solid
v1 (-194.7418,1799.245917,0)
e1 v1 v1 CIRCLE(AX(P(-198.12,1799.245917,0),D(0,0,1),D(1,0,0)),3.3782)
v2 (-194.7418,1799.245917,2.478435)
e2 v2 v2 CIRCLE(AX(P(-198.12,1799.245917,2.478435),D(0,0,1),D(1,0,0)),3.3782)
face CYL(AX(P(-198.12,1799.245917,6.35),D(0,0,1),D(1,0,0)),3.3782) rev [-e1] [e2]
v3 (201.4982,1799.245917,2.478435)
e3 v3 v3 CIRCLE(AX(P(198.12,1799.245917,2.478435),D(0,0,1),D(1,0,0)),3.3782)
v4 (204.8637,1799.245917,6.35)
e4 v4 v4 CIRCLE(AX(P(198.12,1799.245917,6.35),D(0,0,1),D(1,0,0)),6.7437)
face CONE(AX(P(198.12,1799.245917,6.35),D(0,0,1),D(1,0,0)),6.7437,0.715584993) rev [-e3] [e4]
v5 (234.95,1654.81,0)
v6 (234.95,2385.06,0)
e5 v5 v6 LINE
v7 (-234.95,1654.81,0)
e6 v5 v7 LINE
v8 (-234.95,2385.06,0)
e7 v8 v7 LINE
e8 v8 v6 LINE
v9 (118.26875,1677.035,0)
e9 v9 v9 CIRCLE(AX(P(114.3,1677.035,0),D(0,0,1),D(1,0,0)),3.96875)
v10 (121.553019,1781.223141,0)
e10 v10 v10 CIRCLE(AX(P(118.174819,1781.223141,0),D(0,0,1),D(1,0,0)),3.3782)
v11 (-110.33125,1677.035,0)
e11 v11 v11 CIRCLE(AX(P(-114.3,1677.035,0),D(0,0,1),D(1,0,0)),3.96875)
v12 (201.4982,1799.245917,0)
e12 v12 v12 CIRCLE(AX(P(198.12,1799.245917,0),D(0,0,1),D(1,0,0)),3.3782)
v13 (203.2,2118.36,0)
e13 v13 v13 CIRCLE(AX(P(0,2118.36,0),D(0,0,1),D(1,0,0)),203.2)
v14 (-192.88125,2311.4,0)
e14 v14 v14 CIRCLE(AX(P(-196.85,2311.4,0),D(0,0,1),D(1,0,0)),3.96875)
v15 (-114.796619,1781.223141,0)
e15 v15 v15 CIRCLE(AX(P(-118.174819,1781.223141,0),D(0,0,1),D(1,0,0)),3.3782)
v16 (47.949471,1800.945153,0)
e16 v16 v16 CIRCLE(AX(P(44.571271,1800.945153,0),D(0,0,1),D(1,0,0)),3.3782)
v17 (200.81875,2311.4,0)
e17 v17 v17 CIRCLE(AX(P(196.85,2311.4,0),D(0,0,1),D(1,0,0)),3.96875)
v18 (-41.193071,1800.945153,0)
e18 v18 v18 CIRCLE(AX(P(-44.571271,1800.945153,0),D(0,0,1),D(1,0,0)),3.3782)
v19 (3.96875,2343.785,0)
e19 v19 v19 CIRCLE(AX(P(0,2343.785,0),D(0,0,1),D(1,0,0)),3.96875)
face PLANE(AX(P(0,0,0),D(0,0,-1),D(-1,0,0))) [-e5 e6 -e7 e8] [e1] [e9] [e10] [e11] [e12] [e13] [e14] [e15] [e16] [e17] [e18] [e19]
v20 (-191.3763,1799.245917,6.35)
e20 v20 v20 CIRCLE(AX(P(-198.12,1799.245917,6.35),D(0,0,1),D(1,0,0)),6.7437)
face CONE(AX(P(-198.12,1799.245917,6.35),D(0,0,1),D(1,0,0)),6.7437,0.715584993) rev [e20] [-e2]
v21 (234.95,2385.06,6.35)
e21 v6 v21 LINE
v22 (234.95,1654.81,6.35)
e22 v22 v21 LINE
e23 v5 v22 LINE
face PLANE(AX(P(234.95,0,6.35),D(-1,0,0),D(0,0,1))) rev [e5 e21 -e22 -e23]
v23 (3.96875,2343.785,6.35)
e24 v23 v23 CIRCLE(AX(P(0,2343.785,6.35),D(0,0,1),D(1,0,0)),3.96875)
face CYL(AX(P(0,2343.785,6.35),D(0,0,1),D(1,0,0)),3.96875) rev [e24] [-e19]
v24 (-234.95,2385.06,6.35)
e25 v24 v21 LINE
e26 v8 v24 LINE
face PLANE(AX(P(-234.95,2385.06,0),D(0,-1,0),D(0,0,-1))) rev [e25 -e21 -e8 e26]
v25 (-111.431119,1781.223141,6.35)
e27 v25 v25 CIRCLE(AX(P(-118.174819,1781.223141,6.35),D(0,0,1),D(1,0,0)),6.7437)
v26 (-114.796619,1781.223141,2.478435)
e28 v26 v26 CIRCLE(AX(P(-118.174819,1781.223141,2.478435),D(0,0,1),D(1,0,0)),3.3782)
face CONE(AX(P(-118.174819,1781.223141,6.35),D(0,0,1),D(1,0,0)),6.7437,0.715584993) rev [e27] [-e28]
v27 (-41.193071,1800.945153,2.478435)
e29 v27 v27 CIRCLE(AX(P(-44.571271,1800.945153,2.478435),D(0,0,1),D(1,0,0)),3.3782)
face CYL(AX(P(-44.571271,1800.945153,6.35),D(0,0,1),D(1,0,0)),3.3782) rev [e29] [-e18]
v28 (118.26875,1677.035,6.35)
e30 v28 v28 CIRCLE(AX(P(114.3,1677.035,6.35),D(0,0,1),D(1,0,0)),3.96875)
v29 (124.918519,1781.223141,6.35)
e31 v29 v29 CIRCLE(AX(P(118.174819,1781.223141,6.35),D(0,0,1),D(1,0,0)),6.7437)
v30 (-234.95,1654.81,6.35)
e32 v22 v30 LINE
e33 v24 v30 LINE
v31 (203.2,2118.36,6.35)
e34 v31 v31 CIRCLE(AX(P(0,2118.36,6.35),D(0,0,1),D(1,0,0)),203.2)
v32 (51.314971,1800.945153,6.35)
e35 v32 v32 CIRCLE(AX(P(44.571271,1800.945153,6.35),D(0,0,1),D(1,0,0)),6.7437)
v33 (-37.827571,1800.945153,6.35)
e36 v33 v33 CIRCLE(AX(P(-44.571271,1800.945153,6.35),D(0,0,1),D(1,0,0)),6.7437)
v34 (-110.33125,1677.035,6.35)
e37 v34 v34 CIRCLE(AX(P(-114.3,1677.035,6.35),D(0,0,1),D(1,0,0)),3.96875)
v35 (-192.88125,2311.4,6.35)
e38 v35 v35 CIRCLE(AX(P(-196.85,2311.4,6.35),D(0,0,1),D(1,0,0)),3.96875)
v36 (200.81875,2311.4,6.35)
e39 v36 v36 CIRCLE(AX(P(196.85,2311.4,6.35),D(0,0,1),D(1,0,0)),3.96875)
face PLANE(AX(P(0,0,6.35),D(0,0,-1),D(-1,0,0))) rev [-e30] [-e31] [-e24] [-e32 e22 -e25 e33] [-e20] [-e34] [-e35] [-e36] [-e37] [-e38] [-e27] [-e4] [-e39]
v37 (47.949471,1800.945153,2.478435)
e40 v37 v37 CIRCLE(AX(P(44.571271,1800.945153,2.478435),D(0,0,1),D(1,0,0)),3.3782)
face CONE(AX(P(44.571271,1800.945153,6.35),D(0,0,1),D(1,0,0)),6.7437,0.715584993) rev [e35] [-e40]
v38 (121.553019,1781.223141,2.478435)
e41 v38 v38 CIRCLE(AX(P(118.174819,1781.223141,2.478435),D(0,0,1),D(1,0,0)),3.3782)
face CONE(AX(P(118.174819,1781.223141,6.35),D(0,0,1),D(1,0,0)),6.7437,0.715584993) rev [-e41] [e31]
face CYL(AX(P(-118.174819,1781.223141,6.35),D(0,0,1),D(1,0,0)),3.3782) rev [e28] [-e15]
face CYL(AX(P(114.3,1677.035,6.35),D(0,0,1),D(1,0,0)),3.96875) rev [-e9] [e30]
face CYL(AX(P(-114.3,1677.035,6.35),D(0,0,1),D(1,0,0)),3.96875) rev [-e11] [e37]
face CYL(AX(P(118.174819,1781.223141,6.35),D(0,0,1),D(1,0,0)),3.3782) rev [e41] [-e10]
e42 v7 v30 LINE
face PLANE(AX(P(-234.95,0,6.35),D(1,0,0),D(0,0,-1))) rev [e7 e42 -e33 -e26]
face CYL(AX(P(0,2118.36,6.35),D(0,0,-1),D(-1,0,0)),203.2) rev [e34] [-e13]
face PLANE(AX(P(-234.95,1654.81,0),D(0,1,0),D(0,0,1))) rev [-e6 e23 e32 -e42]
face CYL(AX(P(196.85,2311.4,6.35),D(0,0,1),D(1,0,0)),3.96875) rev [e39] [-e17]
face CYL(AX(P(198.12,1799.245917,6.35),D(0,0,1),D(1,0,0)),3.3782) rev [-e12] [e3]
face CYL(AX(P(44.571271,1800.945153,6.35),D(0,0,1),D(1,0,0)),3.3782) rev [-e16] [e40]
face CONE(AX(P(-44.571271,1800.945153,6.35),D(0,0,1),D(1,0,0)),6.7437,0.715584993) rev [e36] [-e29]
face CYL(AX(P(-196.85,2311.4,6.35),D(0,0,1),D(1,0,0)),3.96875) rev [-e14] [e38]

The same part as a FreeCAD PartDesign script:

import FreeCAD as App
import Part
import Sketcher
Q = App.Units.Quantity


def add_polygon(sketch, points):
    """Adds a closed chain of lines whose ends are joined by coincident constraints."""
    first, n = sketch.GeometryCount, len(points)
    for a, b in zip(points, points[1:] + points[:1]):
        sketch.addGeometry(Part.LineSegment(App.Vector(*a, 0), App.Vector(*b, 0)), False)
    for i in range(n):
        sketch.addConstraint(Sketcher.Constraint("Coincident", first + i, 2, first + (i + 1) % n, 1))

doc = App.newDocument("Part")
body = doc.addObject("PartDesign::Body", "Body")

sketch1 = body.newObject("Sketcher::SketchObject", "Sketch")
sketch1.AttachmentSupport = (doc.getObject("XY_Plane"), [""])
sketch1.MapMode = "FlatFace"
add_polygon(sketch1, [(-235, 2413), (-235, 0), (235, 0), (235, 2413)])
sketch1.addGeometry(Part.Circle(App.Vector(0, 696, 0), App.Vector(0, 0, 1), 203), False)
sketch1.addGeometry(Part.Circle(App.Vector(0, 1407, 0), App.Vector(0, 0, 1), 203), False)
sketch1.addGeometry(Part.Circle(App.Vector(0, 2118, 0), App.Vector(0, 0, 1), 203), False)
sketch1.addConstraint([
    Sketcher.Constraint("Vertical", 0),
    Sketcher.Constraint("Horizontal", 1),
    Sketcher.Constraint("Vertical", 2),
    Sketcher.Constraint("Horizontal", 3),
    Sketcher.Constraint("Equal", 4, 5),
    Sketcher.Constraint("Equal", 5, 6),
    Sketcher.Constraint("Symmetric", 0, 2, 1, 2, -1, 1),
    Sketcher.Constraint("PointOnObject", 4, 3, -2),
    Sketcher.Constraint("PointOnObject", 5, 3, -2),
    Sketcher.Constraint("PointOnObject", 6, 3, -2),
    Sketcher.Constraint("Diameter", 4, Q("16 in")),
    Sketcher.Constraint("DistanceY", 0, 2, 0, 1, Q("95 in")),
    Sketcher.Constraint("DistanceX", 1, 1, 1, 2, Q("18.5 in")),
    Sketcher.Constraint("DistanceY", 4, 3, 5, 3, Q("28 in")),
    Sketcher.Constraint("DistanceY", 5, 3, 6, 3, Q("28 in")),
    Sketcher.Constraint("DistanceY", -1, 1, 4, 3, Q("27.4 in")),
])
pad1 = body.newObject("PartDesign::Pad", "Pad")
pad1.Profile = sketch1
pad1.Length = Q("0.25 in")

sketch2 = body.newObject("Sketcher::SketchObject", "Sketch001")
sketch2.AttachmentSupport = (doc.getObject("YZ_Plane"), [""])
sketch2.MapMode = "FlatFace"
sketch2.AttachmentOffset = App.Placement(App.Vector(0, 0, 44.571271), App.Rotation())
add_polygon(sketch2, [(378.5, 0), (378.5, 6.3), (371.8, 6.3), (375.2, 2.5), (375.2, 0)])
sketch2.addGeometry(Part.LineSegment(App.Vector(378.5, 6.3, 0), App.Vector(378.5, 0, 0)), True)
sketch2.addConstraint([
    Sketcher.Constraint("Vertical", 0),
    Sketcher.Constraint("Horizontal", 1),
    Sketcher.Constraint("Vertical", 3),
    Sketcher.Constraint("Horizontal", 4),
    Sketcher.Constraint("Vertical", 5),
    Sketcher.Constraint("Coincident", 5, 1, 0, 2),
    Sketcher.Constraint("PointOnObject", 3, 2, -1),
    Sketcher.Constraint("PointOnObject", 5, 2, -1),
    Sketcher.Constraint("Angle", 2, Q("-49 deg")),
    Sketcher.Constraint("DistanceY", 0, 1, 0, 2, Q("0.25 in")),
    Sketcher.Constraint("DistanceX", 4, 1, 4, 2, Q("0.133 in")),
    Sketcher.Constraint("DistanceX", 1, 2, 1, 1, Q("0.2655 in")),
    Sketcher.Constraint("DistanceX", -1, 1, 0, 2, 378.545153),
])
groove = body.newObject("PartDesign::Groove", "Groove")
groove.Profile = sketch2
groove.ReferenceAxis = (sketch2, ["Axis0"])
groove.Angle = 360
doc.recompute()

datumline = body.newObject("PartDesign::Line", "DatumLine")
datumline.Placement = App.Placement(App.Vector(0, 0, 0), App.Rotation(App.Vector(0, 0, 1), App.Vector(0.965925826, -0.258819045, 0)))
linearpattern = body.newObject("PartDesign::LinearPattern", "LinearPattern")
linearpattern.Originals = [groove]
linearpattern.Direction = (datumline, [""])
linearpattern.Mode = "offset"
linearpattern.Offset = Q("3 in")
linearpattern.Occurrences = 2
body.Tip = linearpattern
doc.recompute()

linearpattern2 = body.newObject("PartDesign::LinearPattern", "LinearPattern001")
linearpattern2.Originals = [groove]
linearpattern2.Direction = (doc.getObject("X_Axis"), [""])
linearpattern2.Mode = "offset"
linearpattern2.Offset = 89.142542
linearpattern2.Occurrences = 2
linearpattern2.Reversed = True
body.Tip = linearpattern2
doc.recompute()

datumline2 = body.newObject("PartDesign::Line", "DatumLine001")
datumline2.Placement = App.Placement(App.Vector(0, 0, 0), App.Rotation(App.Vector(0, 0, 1), App.Vector(-0.99273727, -0.120302586, 0)))
linearpattern3 = body.newObject("PartDesign::LinearPattern", "LinearPattern002")
linearpattern3.Originals = [groove]
linearpattern3.Direction = (datumline2, [""])
linearpattern3.Mode = "offset"
linearpattern3.Offset = 163.936718
linearpattern3.Occurrences = 2
body.Tip = linearpattern3
doc.recompute()

linearpattern4 = body.newObject("PartDesign::LinearPattern", "LinearPattern003")
linearpattern4.Originals = [groove]
linearpattern4.Direction = (doc.getObject("Y_Axis"), [""])
linearpattern4.Mode = "offset"
linearpattern4.Offset = Q("28 in")
linearpattern4.Occurrences = 2
body.Tip = linearpattern4
doc.recompute()

datumline3 = body.newObject("PartDesign::Line", "DatumLine002")
datumline3.Placement = App.Placement(App.Vector(0, 0, 0), App.Rotation(App.Vector(0, 0, 1), App.Vector(0.105845862, 0.994382549, 0)))
linearpattern5 = body.newObject("PartDesign::LinearPattern", "LinearPattern004")
linearpattern5.Originals = [groove]
linearpattern5.Direction = (datumline3, [""])
linearpattern5.Mode = "offset"
linearpattern5.Offset = 695.384276
linearpattern5.Occurrences = 2
body.Tip = linearpattern5
doc.recompute()

datumline4 = body.newObject("PartDesign::Line", "DatumLine003")
datumline4.Placement = App.Placement(App.Vector(0, 0, 0), App.Rotation(App.Vector(0, 0, 1), App.Vector(-0.124367907, 0.992236173, 0)))
linearpattern6 = body.newObject("PartDesign::LinearPattern", "LinearPattern005")
linearpattern6.Originals = [groove]
linearpattern6.Direction = (datumline4, [""])
linearpattern6.Mode = "offset"
linearpattern6.Offset = 716.764838
linearpattern6.Occurrences = 2
body.Tip = linearpattern6
doc.recompute()

datumline5 = body.newObject("PartDesign::Line", "DatumLine004")
datumline5.Placement = App.Placement(App.Vector(0, 0, 0), App.Rotation(App.Vector(0, 0, 1), App.Vector(-0.229099874, 0.973402922, 0)))
linearpattern7 = body.newObject("PartDesign::LinearPattern", "LinearPattern006")
linearpattern7.Originals = [groove]
linearpattern7.Direction = (datumline5, [""])
linearpattern7.Mode = "offset"
linearpattern7.Offset = 710.371804
linearpattern7.Occurrences = 2
body.Tip = linearpattern7
doc.recompute()

linearpattern8 = body.newObject("PartDesign::LinearPattern", "LinearPattern007")
linearpattern8.Originals = [groove]
linearpattern8.Direction = (doc.getObject("Y_Axis"), [""])
linearpattern8.Mode = "offset"
linearpattern8.Offset = Q("56 in")
linearpattern8.Occurrences = 2
body.Tip = linearpattern8
doc.recompute()

datumline6 = body.newObject("PartDesign::Line", "DatumLine005")
datumline6.Placement = App.Placement(App.Vector(0, 0, 0), App.Rotation(App.Vector(0, 0, 1), App.Vector(0.052401495, 0.998626098, 0)))
linearpattern9 = body.newObject("PartDesign::LinearPattern", "LinearPattern008")
linearpattern9.Originals = [groove]
linearpattern9.Direction = (datumline6, [""])
linearpattern9.Mode = "offset"
linearpattern9.Offset = 1404.607783
linearpattern9.Occurrences = 2
body.Tip = linearpattern9
doc.recompute()

datumline7 = body.newObject("PartDesign::Line", "DatumLine006")
datumline7.Placement = App.Placement(App.Vector(0, 0, 0), App.Rotation(App.Vector(0, 0, 1), App.Vector(-0.062547805, 0.998041969, 0)))
linearpattern10 = body.newObject("PartDesign::LinearPattern", "LinearPattern009")
linearpattern10.Originals = [groove]
linearpattern10.Direction = (datumline7, [""])
linearpattern10.Mode = "offset"
linearpattern10.Offset = 1425.190567
linearpattern10.Occurrences = 2
body.Tip = linearpattern10
doc.recompute()

datumline8 = body.newObject("PartDesign::Line", "DatumLine007")
datumline8.Placement = App.Placement(App.Vector(0, 0, 0), App.Rotation(App.Vector(0, 0, 1), App.Vector(-0.115252108, 0.993336273, 0)))
linearpattern11 = body.newObject("PartDesign::LinearPattern", "LinearPattern010")
linearpattern11.Originals = [groove]
linearpattern11.Direction = (datumline8, [""])
linearpattern11.Mode = "offset"
linearpattern11.Offset = 1412.087756
linearpattern11.Occurrences = 2
body.Tip = linearpattern11
doc.recompute()

datumline9 = body.newObject("PartDesign::Line", "DatumLine008")
datumline9.Placement = App.Placement(App.Vector(0, 0, 0), App.Rotation(App.Vector(0, 0, 1), App.Vector(0.999938773, -0.011065747, 0)))
linearpattern12 = body.newObject("PartDesign::LinearPattern", "LinearPattern011")
linearpattern12.Originals = [groove]
linearpattern12.Direction = (datumline9, [""])
linearpattern12.Mode = "offset"
linearpattern12.Offset = 153.558131
linearpattern12.Occurrences = 2
body.Tip = linearpattern12
doc.recompute()

datumline10 = body.newObject("PartDesign::Line", "DatumLine009")
datumline10.Placement = App.Placement(App.Vector(0, 0, 0), App.Rotation(App.Vector(0, 0, 1), App.Vector(-0.999975489, -0.007001462, 0)))
linearpattern13 = body.newObject("PartDesign::LinearPattern", "LinearPattern012")
linearpattern13.Originals = [groove]
linearpattern13.Direction = (datumline10, [""])
linearpattern13.Mode = "offset"
linearpattern13.Offset = 242.69722
linearpattern13.Occurrences = 2
body.Tip = linearpattern13
doc.recompute()

datumline11 = body.newObject("PartDesign::Line", "DatumLine010")
datumline11.Placement = App.Placement(App.Vector(0, 0, 0), App.Rotation(App.Vector(0, 0, 1), App.Vector(-0.32364867, 0.946177329, 0)))
linearpattern14 = body.newObject("PartDesign::LinearPattern", "LinearPattern013")
linearpattern14.Originals = [groove]
linearpattern14.Direction = (datumline11, [""])
linearpattern14.Mode = "offset"
linearpattern14.Offset = 749.860245
linearpattern14.Occurrences = 2
body.Tip = linearpattern14
doc.recompute()

datumline12 = body.newObject("PartDesign::Line", "DatumLine011")
datumline12.Placement = App.Placement(App.Vector(0, 0, 0), App.Rotation(App.Vector(0, 0, 1), App.Vector(-0.168385861, 0.985721158, 0)))
linearpattern15 = body.newObject("PartDesign::LinearPattern", "LinearPattern014")
linearpattern15.Originals = [groove]
linearpattern15.Direction = (datumline12, [""])
linearpattern15.Mode = "offset"
linearpattern15.Offset = 1441.280581
linearpattern15.Occurrences = 2
body.Tip = linearpattern15
doc.recompute()

datumline13 = body.newObject("PartDesign::Line", "DatumLine012")
datumline13.Placement = App.Placement(App.Vector(0, 0, 0), App.Rotation(App.Vector(0, 0, 1), App.Vector(0.107453799, 0.994210079, 0)))
linearpattern16 = body.newObject("PartDesign::LinearPattern", "LinearPattern015")
linearpattern16.Originals = [groove]
linearpattern16.Direction = (datumline13, [""])
linearpattern16.Mode = "offset"
linearpattern16.Offset = 1428.974414
linearpattern16.Occurrences = 2
body.Tip = linearpattern16
doc.recompute()

datumline14 = body.newObject("PartDesign::Line", "DatumLine013")
datumline14.Placement = App.Placement(App.Vector(0, 0, 0), App.Rotation(App.Vector(0, 0, 1), App.Vector(0.211521189, 0.977373412, 0)))
linearpattern17 = body.newObject("PartDesign::LinearPattern", "LinearPattern016")
linearpattern17.Originals = [groove]
linearpattern17.Direction = (datumline14, [""])
linearpattern17.Mode = "offset"
linearpattern17.Offset = 725.925993
linearpattern17.Occurrences = 2
body.Tip = linearpattern17

sketch3 = body.newObject("Sketcher::SketchObject", "Sketch002")
sketch3.AttachmentSupport = (doc.getObject("XY_Plane"), [""])
sketch3.MapMode = "FlatFace"
sketch3.AttachmentOffset = App.Placement(App.Vector(0, 0, 0.25 * 25.4), App.Rotation())
sketch3.addGeometry([
    Part.Circle(App.Vector(-114.3, 254.6, 0), App.Vector(0, 0, 1), 4),
    Part.Circle(App.Vector(-114.3, 210.2, 0), App.Vector(0, 0, 1), 4),
    Part.Circle(App.Vector(-196.8, 177.8, 0), App.Vector(0, 0, 1), 4),
    Part.Circle(App.Vector(196.8, 177.8, 0), App.Vector(0, 0, 1), 4),
    Part.Circle(App.Vector(114.3, 210.2, 0), App.Vector(0, 0, 1), 4),
    Part.Circle(App.Vector(114.3, 254.6, 0), App.Vector(0, 0, 1), 4),
    Part.Circle(App.Vector(-114.3, 965.8, 0), App.Vector(0, 0, 1), 4),
    Part.Circle(App.Vector(-114.3, 921.4, 0), App.Vector(0, 0, 1), 4),
    Part.Circle(App.Vector(-196.8, 889, 0), App.Vector(0, 0, 1), 4),
    Part.Circle(App.Vector(196.8, 889, 0), App.Vector(0, 0, 1), 4),
    Part.Circle(App.Vector(114.3, 921.4, 0), App.Vector(0, 0, 1), 4),
    Part.Circle(App.Vector(114.3, 965.8, 0), App.Vector(0, 0, 1), 4),
    Part.Circle(App.Vector(-114.3, 1677, 0), App.Vector(0, 0, 1), 4),
    Part.Circle(App.Vector(-114.3, 1632.6, 0), App.Vector(0, 0, 1), 4),
    Part.Circle(App.Vector(-196.8, 1600.2, 0), App.Vector(0, 0, 1), 4),
    Part.Circle(App.Vector(196.8, 1600.2, 0), App.Vector(0, 0, 1), 4),
    Part.Circle(App.Vector(114.3, 1632.6, 0), App.Vector(0, 0, 1), 4),
    Part.Circle(App.Vector(114.3, 1677, 0), App.Vector(0, 0, 1), 4),
    Part.Circle(App.Vector(-196.8, 2311.4, 0), App.Vector(0, 0, 1), 4),
    Part.Circle(App.Vector(196.8, 2311.4, 0), App.Vector(0, 0, 1), 4),
    Part.Circle(App.Vector(0, 2343.8, 0), App.Vector(0, 0, 1), 4),
], False)
sketch3.addConstraint([
    Sketcher.Constraint("Equal", 0, 1),
    Sketcher.Constraint("Equal", 1, 2),
    Sketcher.Constraint("Equal", 2, 3),
    Sketcher.Constraint("Equal", 3, 4),
    Sketcher.Constraint("Equal", 4, 5),
    Sketcher.Constraint("Equal", 5, 6),
    Sketcher.Constraint("Equal", 6, 7),
    Sketcher.Constraint("Equal", 7, 8),
    Sketcher.Constraint("Equal", 8, 9),
    Sketcher.Constraint("Equal", 9, 10),
    Sketcher.Constraint("Equal", 10, 11),
    Sketcher.Constraint("Equal", 11, 12),
    Sketcher.Constraint("Equal", 12, 13),
    Sketcher.Constraint("Equal", 13, 14),
    Sketcher.Constraint("Equal", 14, 15),
    Sketcher.Constraint("Equal", 15, 16),
    Sketcher.Constraint("Equal", 16, 17),
    Sketcher.Constraint("Equal", 17, 18),
    Sketcher.Constraint("Equal", 18, 19),
    Sketcher.Constraint("Equal", 19, 20),
    Sketcher.Constraint("Symmetric", 2, 3, 3, 3, -2),
    Sketcher.Constraint("Symmetric", 1, 3, 4, 3, -2),
    Sketcher.Constraint("Symmetric", 0, 3, 5, 3, -2),
    Sketcher.Constraint("Symmetric", 8, 3, 9, 3, -2),
    Sketcher.Constraint("Symmetric", 7, 3, 10, 3, -2),
    Sketcher.Constraint("Symmetric", 6, 3, 11, 3, -2),
    Sketcher.Constraint("Symmetric", 14, 3, 15, 3, -2),
    Sketcher.Constraint("Symmetric", 13, 3, 16, 3, -2),
    Sketcher.Constraint("Symmetric", 12, 3, 17, 3, -2),
    Sketcher.Constraint("Symmetric", 18, 3, 19, 3, -2),
    Sketcher.Constraint("PointOnObject", 20, 3, -2),
    Sketcher.Constraint("Vertical", 0, 3, 1, 3),
    Sketcher.Constraint("Vertical", 1, 3, 6, 3),
    Sketcher.Constraint("Vertical", 6, 3, 7, 3),
    Sketcher.Constraint("Vertical", 2, 3, 8, 3),
    Sketcher.Constraint("Vertical", 7, 3, 12, 3),
    Sketcher.Constraint("Vertical", 12, 3, 13, 3),
    Sketcher.Constraint("Vertical", 8, 3, 14, 3),
    Sketcher.Constraint("Vertical", 14, 3, 18, 3),
    Sketcher.Constraint("Diameter", 0, Q("0.3125 in")),
    Sketcher.Constraint("DistanceY", -1, 1, 2, 3, Q("7 in")),
    Sketcher.Constraint("DistanceY", -1, 1, 8, 3, Q("35 in")),
    Sketcher.Constraint("DistanceY", -1, 1, 14, 3, Q("63 in")),
    Sketcher.Constraint("DistanceY", -1, 1, 18, 3, Q("91 in")),
    Sketcher.Constraint("DistanceX", 1, 3, 4, 3, Q("9 in")),
    Sketcher.Constraint("DistanceY", 0, 3, 6, 3, Q("28 in")),
    Sketcher.Constraint("DistanceY", 1, 3, 7, 3, Q("28 in")),
    Sketcher.Constraint("DistanceY", 6, 3, 12, 3, Q("28 in")),
    Sketcher.Constraint("DistanceY", 7, 3, 13, 3, Q("28 in")),
    Sketcher.Constraint("DistanceY", 13, 3, 20, 3, Q("28 in")),
    Sketcher.Constraint("DistanceX", 2, 3, 3, 3, Q("15.5 in")),
    Sketcher.Constraint("DistanceY", 1, 3, 0, 3, Q("1.75 in")),
    Sketcher.Constraint("DistanceY", -1, 1, 0, 3, Q("10.025 in")),
])
doc.recompute()
hole = body.newObject("PartDesign::Hole", "Hole")
hole.Profile = sketch3
hole.ThreadType = "None"
hole.Diameter = Q("0.3125 in")
hole.DepthType = "ThroughAll"

sketch4 = body.newObject("Sketcher::SketchObject", "Sketch003")
sketch4.AttachmentSupport = (doc.getObject("XY_Plane"), [""])
sketch4.MapMode = "FlatFace"
sketch4.AttachmentOffset = App.Placement(App.Vector(0, 0, 0.25 * 25.4), App.Rotation())
add_polygon(sketch4, [(-235, 1655), (-235, 0), (235, 0), (235, 1655)])
sketch4.addConstraint([
    Sketcher.Constraint("Vertical", 0),
    Sketcher.Constraint("Horizontal", 1),
    Sketcher.Constraint("Vertical", 2),
    Sketcher.Constraint("Horizontal", 3),
    Sketcher.Constraint("Symmetric", 0, 2, 1, 2, -1, 1),
    Sketcher.Constraint("DistanceX", 1, 1, 1, 2, Q("18.5 in")),
    Sketcher.Constraint("DistanceY", 0, 2, 0, 1, Q("65.15 in")),
])
pocket1 = body.newObject("PartDesign::Pocket", "Pocket")
pocket1.Profile = sketch4
pocket1.Type = "ThroughAll"

sketch5 = body.newObject("Sketcher::SketchObject", "Sketch004")
sketch5.AttachmentSupport = (doc.getObject("XY_Plane"), [""])
sketch5.MapMode = "FlatFace"
sketch5.AttachmentOffset = App.Placement(App.Vector(0, 0, 0.25 * 25.4), App.Rotation())
add_polygon(sketch5, [(-235, 2413), (-235, 2385), (235, 2385), (235, 2413)])
sketch5.addConstraint([
    Sketcher.Constraint("Vertical", 0),
    Sketcher.Constraint("Horizontal", 1),
    Sketcher.Constraint("Vertical", 2),
    Sketcher.Constraint("Horizontal", 3),
    Sketcher.Constraint("DistanceX", 1, 1, 1, 2, Q("18.5 in")),
    Sketcher.Constraint("DistanceY", 0, 2, 0, 1, Q("1.1 in")),
    Sketcher.Constraint("DistanceY", -1, 1, 2, 2, Q("95 in")),
    Sketcher.Constraint("DistanceX", 0, 2, -1, 1, Q("9.25 in")),
])
pocket2 = body.newObject("PartDesign::Pocket", "Pocket001")
pocket2.Profile = sketch5
pocket2.Type = "ThroughAll"

doc.recompute()
